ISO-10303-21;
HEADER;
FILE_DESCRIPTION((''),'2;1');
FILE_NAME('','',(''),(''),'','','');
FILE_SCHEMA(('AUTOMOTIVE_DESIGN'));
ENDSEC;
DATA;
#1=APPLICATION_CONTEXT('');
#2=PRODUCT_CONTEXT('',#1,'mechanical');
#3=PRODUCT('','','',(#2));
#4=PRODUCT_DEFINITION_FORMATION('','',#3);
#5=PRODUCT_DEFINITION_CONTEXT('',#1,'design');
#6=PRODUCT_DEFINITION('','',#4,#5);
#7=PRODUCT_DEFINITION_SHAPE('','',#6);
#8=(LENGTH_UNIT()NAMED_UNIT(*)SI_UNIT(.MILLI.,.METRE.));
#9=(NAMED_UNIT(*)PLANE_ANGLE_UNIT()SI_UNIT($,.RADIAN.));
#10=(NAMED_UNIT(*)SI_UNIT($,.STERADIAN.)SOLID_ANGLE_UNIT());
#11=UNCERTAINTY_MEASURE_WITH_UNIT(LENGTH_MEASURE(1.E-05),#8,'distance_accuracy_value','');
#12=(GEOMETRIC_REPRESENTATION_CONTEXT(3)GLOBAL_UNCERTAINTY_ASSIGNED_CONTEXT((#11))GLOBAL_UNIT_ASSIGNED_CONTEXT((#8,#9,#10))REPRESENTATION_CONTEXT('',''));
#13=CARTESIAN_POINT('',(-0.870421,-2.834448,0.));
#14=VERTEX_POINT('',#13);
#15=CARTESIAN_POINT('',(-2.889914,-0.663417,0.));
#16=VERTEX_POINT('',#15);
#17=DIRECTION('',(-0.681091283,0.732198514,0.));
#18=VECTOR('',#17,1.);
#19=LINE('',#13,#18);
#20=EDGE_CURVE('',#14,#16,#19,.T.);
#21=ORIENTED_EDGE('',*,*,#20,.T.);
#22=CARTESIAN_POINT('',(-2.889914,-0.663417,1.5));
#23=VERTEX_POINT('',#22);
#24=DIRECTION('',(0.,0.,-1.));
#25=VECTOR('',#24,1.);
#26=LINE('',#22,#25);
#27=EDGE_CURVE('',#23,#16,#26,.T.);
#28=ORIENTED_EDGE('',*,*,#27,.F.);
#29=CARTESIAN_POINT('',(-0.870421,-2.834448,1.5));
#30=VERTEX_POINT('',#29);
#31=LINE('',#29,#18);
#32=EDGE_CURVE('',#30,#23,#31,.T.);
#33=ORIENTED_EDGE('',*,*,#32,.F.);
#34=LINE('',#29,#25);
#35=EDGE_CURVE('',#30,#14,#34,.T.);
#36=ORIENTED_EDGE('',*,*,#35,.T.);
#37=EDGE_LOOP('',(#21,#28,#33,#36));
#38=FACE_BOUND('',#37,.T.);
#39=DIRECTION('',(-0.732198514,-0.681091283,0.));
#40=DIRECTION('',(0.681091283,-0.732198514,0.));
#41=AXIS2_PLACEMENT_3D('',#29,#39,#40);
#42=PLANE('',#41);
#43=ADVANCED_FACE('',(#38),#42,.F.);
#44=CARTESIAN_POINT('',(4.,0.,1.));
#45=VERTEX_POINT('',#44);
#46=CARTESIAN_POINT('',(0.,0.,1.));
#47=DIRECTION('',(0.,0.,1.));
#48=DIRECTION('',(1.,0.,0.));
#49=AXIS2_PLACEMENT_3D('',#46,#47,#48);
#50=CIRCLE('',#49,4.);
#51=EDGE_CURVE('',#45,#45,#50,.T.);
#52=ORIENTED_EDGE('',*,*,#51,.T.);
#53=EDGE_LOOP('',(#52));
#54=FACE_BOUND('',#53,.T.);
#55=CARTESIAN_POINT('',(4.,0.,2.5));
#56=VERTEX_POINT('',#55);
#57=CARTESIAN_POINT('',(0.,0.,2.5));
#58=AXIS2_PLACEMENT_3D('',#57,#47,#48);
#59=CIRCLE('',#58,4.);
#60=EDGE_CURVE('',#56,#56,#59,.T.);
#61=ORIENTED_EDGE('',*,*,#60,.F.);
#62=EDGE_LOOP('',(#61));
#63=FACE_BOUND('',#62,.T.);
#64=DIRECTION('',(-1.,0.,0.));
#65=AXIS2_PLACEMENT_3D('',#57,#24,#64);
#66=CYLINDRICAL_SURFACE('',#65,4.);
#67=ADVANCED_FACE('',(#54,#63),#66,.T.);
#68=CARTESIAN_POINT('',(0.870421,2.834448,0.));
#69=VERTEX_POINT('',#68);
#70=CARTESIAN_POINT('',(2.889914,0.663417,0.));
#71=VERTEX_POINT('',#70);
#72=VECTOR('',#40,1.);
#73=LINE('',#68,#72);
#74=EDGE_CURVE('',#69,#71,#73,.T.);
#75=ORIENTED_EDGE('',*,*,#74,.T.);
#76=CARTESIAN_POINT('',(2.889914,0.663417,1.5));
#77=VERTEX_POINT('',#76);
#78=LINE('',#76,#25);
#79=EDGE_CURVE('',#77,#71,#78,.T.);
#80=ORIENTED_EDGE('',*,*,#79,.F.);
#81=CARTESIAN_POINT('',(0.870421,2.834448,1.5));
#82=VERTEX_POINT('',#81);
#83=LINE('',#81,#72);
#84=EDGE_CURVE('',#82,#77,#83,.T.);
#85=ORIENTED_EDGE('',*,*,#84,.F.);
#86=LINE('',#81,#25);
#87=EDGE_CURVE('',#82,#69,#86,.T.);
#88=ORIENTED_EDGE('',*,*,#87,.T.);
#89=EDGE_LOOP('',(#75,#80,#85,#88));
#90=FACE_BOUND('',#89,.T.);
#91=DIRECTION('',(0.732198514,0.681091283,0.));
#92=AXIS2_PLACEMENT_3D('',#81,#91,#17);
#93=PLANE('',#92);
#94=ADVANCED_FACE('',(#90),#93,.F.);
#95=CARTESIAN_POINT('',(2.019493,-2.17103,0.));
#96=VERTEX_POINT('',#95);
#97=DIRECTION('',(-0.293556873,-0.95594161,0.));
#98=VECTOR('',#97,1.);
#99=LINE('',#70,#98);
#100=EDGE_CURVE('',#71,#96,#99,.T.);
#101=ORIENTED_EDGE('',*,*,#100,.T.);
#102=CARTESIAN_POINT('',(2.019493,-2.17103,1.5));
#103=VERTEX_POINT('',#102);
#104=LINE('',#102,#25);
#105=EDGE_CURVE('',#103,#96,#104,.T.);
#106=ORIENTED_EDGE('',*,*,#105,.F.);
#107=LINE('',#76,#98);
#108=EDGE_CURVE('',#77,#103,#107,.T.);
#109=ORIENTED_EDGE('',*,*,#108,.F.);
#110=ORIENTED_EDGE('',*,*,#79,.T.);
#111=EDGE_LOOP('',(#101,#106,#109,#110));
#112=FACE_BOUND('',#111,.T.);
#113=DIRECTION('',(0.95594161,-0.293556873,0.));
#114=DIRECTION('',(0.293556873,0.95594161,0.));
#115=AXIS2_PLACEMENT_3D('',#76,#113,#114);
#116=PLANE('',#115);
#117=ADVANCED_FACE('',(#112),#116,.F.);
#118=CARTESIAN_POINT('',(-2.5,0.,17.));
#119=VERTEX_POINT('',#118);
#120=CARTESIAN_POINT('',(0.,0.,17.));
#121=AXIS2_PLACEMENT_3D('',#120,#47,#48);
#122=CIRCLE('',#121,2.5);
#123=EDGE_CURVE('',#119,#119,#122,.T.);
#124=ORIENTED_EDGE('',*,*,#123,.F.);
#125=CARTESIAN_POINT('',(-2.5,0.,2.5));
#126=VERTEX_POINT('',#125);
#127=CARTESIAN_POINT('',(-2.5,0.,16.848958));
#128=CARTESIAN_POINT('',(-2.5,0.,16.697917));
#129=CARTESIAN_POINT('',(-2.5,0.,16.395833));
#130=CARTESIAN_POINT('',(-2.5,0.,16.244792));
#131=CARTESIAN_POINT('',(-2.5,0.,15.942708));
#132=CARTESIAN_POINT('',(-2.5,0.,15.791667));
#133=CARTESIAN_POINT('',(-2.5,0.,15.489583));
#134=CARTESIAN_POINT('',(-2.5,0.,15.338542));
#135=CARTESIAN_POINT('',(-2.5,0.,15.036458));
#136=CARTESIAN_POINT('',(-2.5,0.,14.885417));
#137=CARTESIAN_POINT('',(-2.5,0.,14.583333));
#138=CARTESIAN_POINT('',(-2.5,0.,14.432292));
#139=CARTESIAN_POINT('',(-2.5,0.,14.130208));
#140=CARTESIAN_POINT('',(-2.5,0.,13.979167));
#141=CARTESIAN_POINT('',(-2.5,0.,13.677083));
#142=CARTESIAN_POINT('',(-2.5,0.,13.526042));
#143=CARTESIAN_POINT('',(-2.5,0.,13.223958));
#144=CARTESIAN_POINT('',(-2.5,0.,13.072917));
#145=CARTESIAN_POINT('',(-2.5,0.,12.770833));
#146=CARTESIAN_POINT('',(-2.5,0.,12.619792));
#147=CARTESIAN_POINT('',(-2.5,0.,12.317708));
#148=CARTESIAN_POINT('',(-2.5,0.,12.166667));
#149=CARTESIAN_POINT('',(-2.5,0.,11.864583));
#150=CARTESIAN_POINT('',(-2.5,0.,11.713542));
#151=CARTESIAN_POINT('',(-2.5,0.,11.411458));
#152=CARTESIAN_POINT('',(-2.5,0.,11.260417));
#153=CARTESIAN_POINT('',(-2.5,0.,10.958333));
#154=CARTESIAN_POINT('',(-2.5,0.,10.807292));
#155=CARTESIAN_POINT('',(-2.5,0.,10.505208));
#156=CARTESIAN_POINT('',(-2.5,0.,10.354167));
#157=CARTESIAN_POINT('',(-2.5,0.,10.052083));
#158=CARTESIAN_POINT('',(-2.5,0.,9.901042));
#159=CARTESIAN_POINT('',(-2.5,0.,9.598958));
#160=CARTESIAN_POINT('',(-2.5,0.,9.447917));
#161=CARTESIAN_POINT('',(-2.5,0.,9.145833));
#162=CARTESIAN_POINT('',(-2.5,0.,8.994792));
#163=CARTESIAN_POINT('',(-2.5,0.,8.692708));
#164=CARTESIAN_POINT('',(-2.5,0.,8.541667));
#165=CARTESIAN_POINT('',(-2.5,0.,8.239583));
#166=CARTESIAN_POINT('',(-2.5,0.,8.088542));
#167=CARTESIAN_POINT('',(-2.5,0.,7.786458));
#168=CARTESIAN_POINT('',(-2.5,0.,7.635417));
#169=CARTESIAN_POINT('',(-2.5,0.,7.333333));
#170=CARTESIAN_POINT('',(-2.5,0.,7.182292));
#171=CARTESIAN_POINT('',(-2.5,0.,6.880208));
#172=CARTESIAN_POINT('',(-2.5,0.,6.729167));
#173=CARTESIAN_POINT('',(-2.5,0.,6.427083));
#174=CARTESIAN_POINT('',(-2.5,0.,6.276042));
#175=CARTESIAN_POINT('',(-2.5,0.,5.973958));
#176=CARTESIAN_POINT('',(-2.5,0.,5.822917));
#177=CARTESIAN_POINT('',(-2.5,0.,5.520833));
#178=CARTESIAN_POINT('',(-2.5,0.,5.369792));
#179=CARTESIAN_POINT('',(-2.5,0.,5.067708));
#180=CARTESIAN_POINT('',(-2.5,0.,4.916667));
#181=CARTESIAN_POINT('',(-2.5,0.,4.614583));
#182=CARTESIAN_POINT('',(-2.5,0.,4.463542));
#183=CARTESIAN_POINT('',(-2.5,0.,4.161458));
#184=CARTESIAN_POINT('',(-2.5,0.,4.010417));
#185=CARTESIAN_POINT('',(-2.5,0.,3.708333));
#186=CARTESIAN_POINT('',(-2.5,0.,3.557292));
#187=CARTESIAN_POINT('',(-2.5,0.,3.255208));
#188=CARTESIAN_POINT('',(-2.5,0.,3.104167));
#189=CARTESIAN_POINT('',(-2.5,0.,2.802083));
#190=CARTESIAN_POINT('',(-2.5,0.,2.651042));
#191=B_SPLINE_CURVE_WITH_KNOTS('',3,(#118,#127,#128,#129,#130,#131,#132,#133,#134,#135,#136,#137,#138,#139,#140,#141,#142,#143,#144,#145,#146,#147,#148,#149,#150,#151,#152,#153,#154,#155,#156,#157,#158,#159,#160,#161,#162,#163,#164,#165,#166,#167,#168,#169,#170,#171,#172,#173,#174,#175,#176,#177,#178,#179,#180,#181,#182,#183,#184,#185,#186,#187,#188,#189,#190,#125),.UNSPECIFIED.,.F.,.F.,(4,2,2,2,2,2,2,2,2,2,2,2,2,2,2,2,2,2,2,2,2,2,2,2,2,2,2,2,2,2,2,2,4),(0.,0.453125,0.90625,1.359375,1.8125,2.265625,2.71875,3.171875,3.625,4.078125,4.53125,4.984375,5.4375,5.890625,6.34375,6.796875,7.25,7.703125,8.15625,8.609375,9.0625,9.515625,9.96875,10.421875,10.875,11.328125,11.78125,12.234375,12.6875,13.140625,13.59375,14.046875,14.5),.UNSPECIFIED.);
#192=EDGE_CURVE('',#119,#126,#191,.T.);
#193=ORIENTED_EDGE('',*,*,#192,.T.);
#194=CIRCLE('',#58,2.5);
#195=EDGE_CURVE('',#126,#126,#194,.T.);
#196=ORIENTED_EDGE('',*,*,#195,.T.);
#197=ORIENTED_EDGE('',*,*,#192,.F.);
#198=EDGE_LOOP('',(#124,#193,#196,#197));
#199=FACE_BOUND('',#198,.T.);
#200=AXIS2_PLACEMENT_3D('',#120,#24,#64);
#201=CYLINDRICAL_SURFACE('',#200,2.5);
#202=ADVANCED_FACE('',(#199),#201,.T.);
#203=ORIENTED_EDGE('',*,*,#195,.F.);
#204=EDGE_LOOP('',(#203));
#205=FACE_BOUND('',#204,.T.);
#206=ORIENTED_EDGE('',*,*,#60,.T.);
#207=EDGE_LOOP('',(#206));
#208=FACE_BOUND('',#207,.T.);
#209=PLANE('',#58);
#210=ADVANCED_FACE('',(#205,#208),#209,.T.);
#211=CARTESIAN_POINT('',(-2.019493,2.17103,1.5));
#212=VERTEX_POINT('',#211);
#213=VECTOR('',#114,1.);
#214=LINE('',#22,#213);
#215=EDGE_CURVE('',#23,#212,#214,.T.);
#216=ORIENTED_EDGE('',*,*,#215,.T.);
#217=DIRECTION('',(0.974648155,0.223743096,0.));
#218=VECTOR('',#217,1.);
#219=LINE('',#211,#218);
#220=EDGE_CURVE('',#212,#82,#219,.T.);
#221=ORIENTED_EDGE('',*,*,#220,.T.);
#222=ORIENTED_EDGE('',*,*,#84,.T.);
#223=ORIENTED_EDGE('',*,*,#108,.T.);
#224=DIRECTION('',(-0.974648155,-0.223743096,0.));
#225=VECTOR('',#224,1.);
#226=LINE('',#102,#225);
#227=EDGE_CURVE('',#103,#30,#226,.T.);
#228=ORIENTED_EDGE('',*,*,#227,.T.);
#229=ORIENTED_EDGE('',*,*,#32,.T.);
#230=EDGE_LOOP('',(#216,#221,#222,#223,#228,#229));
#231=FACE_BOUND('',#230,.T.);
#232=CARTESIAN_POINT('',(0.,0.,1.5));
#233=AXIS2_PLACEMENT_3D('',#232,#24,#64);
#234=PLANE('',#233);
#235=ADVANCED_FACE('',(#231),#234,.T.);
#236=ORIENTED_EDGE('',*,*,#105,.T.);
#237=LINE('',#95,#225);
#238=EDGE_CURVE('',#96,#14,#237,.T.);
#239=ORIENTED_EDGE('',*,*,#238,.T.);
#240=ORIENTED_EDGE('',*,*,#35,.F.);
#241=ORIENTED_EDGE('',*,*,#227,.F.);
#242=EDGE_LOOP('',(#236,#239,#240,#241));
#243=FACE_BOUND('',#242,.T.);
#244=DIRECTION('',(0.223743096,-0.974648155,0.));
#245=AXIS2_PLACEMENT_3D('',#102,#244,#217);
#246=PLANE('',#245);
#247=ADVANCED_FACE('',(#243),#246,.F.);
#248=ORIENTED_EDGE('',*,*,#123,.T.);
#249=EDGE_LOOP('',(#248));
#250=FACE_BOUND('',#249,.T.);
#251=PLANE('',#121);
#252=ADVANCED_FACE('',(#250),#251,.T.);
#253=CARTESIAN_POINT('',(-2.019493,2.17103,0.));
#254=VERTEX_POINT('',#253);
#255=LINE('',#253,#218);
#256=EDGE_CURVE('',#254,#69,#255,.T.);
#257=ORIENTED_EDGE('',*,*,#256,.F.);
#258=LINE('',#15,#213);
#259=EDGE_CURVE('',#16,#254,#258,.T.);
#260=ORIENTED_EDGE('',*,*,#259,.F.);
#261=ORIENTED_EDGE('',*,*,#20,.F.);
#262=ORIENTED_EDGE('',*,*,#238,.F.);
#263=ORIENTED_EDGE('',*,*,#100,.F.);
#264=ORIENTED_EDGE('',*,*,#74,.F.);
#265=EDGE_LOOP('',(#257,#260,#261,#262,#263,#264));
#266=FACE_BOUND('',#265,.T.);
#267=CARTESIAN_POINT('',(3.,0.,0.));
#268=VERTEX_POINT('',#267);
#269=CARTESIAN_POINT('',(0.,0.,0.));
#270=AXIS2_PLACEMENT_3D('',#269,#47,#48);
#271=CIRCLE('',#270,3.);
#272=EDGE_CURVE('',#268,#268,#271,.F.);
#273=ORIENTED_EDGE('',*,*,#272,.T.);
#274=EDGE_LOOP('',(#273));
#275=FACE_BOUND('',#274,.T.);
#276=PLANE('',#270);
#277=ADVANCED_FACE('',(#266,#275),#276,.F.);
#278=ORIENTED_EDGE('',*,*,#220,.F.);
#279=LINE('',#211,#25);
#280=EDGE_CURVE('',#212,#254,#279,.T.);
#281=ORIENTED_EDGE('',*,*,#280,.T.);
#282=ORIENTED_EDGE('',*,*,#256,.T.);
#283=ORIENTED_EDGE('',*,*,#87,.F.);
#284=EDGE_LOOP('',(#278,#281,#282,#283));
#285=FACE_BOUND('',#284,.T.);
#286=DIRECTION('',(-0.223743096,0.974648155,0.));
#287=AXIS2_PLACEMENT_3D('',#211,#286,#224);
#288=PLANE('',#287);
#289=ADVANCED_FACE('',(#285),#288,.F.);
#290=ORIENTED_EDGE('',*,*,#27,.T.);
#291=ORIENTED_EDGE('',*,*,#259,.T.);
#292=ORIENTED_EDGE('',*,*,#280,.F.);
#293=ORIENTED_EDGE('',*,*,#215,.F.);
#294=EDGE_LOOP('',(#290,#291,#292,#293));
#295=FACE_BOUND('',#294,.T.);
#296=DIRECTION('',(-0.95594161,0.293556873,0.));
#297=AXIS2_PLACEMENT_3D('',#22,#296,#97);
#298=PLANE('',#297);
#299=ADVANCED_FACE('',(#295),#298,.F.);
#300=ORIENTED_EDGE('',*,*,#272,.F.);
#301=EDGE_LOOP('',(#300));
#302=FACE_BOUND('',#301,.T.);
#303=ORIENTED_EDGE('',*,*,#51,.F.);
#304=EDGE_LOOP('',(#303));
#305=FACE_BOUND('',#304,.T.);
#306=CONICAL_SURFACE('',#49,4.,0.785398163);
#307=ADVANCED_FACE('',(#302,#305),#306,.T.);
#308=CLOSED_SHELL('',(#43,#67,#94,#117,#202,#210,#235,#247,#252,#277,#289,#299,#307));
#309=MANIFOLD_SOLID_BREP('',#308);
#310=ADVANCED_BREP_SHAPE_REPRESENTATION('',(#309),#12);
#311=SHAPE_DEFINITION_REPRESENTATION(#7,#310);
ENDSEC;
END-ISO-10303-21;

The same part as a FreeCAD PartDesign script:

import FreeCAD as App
import Part
import Sketcher


def edges_at(feature, points):
    """Names of the edges that pass closest to the given points."""
    edges = feature.Shape.Edges
    near = lambda p: min(range(len(edges)), key=lambda i: edges[i].distToShape(Part.Vertex(*p))[0])
    return sorted({f"Edge{near(p) + 1}" for p in points})

doc = App.newDocument("Part")
body = doc.addObject("PartDesign::Body", "Body")

sketch1 = body.newObject("Sketcher::SketchObject", "Sketch")
sketch1.AttachmentSupport = (doc.getObject("XY_Plane"), [""])
sketch1.MapMode = "FlatFace"
sketch1.addGeometry(Part.Circle(App.Vector(0, 0, 0), App.Vector(0, 0, 1), 4), False)
sketch1.addConstraint(Sketcher.Constraint("Coincident", 0, 3, -1, 1))
sketch1.addConstraint(Sketcher.Constraint("Diameter", 0, 8.0))
pad1 = body.newObject("PartDesign::Pad", "Pad")
pad1.Profile = sketch1
pad1.Length = 2.5

sketch2 = body.newObject("Sketcher::SketchObject", "Sketch001")
sketch2.AttachmentSupport = (doc.getObject("XY_Plane"), [""])
sketch2.MapMode = "FlatFace"
sketch2.addGeometry(Part.Circle(App.Vector(0, 0, 0), App.Vector(0, 0, 1), 4), False)
sketch2.addGeometry(Part.Circle(App.Vector(0, 0, 0), App.Vector(0, 0, 1), 2.5), False)
sketch2.addConstraint(Sketcher.Constraint("Coincident", 0, 3, -1, 1))
sketch2.addConstraint(Sketcher.Constraint("Coincident", 1, 3, -1, 1))
sketch2.addConstraint(Sketcher.Constraint("Diameter", 0, 8.0))
sketch2.addConstraint(Sketcher.Constraint("Diameter", 1, 5.0))
pad2 = body.newObject("PartDesign::Pad", "Pad001")
pad2.Profile = sketch2
pad2.Length = 2.5

sketch3 = body.newObject("Sketcher::SketchObject", "Sketch002")
sketch3.AttachmentSupport = (doc.getObject("XY_Plane"), [""])
sketch3.MapMode = "FlatFace"
sketch3.AttachmentOffset = App.Placement(App.Vector(0, 0, 2.5), App.Rotation())
sketch3.addGeometry(Part.Circle(App.Vector(0, 0, 0), App.Vector(0, 0, 1), 2.5), False)
sketch3.addConstraint(Sketcher.Constraint("Coincident", 0, 3, -1, 1))
sketch3.addConstraint(Sketcher.Constraint("Diameter", 0, 5.0))
pad3 = body.newObject("PartDesign::Pad", "Pad002")
pad3.Profile = sketch3
pad3.Length = 14.5
doc.recompute()

chamfer = body.newObject("PartDesign::Chamfer", "Chamfer")
chamfer.Base = (pad3, edges_at(pad3, [(-4, 0, 0)]))
chamfer.Size = 1

sketch4 = body.newObject("Sketcher::SketchObject", "Sketch003")
sketch4.AttachmentSupport = (doc.getObject("XY_Plane"), [""])
sketch4.MapMode = "FlatFace"
sketch4.addGeometry(Part.LineSegment(App.Vector(0.9, 2.8, 0), App.Vector(2.9, 0.7, 0)), False)
sketch4.addGeometry(Part.LineSegment(App.Vector(2.9, 0.7, 0), App.Vector(2, -2.2, 0)), False)
sketch4.addGeometry(Part.LineSegment(App.Vector(2, -2.2, 0), App.Vector(-0.9, -2.8, 0)), False)
sketch4.addGeometry(Part.LineSegment(App.Vector(-0.9, -2.8, 0), App.Vector(-2.9, -0.7, 0)), False)
sketch4.addGeometry(Part.LineSegment(App.Vector(-2.9, -0.7, 0), App.Vector(-2, 2.2, 0)), False)
sketch4.addGeometry(Part.LineSegment(App.Vector(-2, 2.2, 0), App.Vector(0.9, 2.8, 0)), False)
sketch4.addConstraint(Sketcher.Constraint("Coincident", 0, 2, 1, 1))
sketch4.addConstraint(Sketcher.Constraint("Coincident", 1, 2, 2, 1))
sketch4.addConstraint(Sketcher.Constraint("Coincident", 2, 2, 3, 1))
sketch4.addConstraint(Sketcher.Constraint("Coincident", 3, 2, 4, 1))
sketch4.addConstraint(Sketcher.Constraint("Coincident", 4, 2, 5, 1))
sketch4.addConstraint(Sketcher.Constraint("Coincident", 5, 2, 0, 1))
sketch4.addConstraint(Sketcher.Constraint("Symmetric", 0, 2, 3, 2, -1, 1))
sketch4.addConstraint(Sketcher.Constraint("Symmetric", 1, 2, 4, 2, -1, 1))
sketch4.addConstraint(Sketcher.Constraint("Symmetric", 2, 2, 5, 2, -1, 1))
sketch4.addConstraint(Sketcher.Constraint("Equal", 0, 1))
sketch4.addConstraint(Sketcher.Constraint("Equal", 1, 2))
sketch4.addConstraint(Sketcher.Constraint("DistanceY", 1, 2, -1, 1, 2.17103))
sketch4.addConstraint(Sketcher.Constraint("DistanceX", 2, 2, -1, 1, 0.870421))
sketch4.addConstraint(Sketcher.Constraint("DistanceX", 1, 2, 0, 2, 0.870421))
sketch4.addConstraint(Sketcher.Constraint("DistanceY", 2, 2, 3, 2, 2.17103))
pocket1 = body.newObject("PartDesign::Pocket", "Pocket")
pocket1.Profile = sketch4
pocket1.Length = 1.5
pocket1.Reversed = True

doc.recompute()
